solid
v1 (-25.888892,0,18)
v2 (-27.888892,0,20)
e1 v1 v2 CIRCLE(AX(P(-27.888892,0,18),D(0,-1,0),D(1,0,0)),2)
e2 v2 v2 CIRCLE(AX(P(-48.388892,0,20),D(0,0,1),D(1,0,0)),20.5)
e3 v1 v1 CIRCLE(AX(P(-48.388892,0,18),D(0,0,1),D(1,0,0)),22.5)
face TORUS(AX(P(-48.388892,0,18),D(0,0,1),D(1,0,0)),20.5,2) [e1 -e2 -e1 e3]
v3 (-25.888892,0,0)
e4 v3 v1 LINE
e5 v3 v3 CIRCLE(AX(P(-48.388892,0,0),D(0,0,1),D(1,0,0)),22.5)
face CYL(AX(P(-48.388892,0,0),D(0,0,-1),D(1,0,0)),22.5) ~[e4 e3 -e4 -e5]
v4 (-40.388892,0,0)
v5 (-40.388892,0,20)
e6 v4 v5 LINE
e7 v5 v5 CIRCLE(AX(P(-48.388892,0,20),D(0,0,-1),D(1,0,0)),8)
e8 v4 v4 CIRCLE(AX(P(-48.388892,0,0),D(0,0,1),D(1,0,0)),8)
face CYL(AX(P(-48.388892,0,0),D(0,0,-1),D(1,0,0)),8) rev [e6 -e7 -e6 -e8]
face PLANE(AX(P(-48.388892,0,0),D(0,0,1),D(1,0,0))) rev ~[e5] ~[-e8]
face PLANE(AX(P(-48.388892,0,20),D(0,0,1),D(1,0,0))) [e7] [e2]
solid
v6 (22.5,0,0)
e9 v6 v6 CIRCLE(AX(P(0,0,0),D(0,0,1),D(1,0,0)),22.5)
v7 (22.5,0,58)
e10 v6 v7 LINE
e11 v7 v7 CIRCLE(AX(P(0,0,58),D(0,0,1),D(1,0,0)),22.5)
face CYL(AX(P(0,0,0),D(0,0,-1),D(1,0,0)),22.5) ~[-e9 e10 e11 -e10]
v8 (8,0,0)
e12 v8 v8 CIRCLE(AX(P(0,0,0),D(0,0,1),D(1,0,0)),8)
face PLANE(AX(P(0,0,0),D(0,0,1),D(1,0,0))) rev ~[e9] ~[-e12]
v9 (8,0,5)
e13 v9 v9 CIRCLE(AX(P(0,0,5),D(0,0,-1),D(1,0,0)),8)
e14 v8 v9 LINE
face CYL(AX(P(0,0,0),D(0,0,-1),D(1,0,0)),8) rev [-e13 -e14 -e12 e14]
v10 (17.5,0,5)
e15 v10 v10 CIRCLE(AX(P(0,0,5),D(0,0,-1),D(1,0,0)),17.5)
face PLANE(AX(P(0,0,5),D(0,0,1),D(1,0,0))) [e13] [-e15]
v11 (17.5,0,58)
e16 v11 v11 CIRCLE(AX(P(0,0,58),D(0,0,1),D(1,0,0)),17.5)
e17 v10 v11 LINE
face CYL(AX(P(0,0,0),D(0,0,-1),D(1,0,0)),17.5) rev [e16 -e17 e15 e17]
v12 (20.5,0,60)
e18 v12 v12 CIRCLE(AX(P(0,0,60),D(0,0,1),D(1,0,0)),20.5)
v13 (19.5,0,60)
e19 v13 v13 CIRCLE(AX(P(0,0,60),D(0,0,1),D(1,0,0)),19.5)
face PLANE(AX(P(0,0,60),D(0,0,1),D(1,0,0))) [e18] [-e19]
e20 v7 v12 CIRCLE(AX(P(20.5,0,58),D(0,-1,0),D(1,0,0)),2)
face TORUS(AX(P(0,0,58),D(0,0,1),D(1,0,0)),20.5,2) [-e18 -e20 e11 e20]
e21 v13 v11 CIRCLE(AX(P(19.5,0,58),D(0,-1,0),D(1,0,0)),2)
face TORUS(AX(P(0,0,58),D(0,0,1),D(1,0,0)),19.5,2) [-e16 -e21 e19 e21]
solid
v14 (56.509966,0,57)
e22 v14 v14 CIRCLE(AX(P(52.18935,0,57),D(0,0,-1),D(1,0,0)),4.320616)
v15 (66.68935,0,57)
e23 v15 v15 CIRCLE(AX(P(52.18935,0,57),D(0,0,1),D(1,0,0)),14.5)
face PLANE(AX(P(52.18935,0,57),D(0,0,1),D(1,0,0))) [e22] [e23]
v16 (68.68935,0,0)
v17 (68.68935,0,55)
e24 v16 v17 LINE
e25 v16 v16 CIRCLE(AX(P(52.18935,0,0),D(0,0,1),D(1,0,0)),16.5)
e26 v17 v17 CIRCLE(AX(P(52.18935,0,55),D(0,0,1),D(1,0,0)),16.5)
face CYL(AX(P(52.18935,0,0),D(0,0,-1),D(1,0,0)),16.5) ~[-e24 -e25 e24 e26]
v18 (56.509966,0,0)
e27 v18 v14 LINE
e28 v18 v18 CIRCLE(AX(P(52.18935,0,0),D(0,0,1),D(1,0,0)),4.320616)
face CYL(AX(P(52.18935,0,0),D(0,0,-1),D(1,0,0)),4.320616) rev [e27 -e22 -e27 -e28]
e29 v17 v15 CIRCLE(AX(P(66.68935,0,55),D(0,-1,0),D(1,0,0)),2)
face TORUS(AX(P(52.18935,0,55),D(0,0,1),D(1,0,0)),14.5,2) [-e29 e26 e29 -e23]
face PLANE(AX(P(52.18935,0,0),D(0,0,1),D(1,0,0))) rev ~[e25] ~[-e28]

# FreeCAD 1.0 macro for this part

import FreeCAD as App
import Part
import Sketcher

V = App.Vector
Q = App.Units.Quantity


def edges_at(feature, points):
    """Names of the edges that pass closest to the given points."""
    edges = feature.Shape.Edges
    near = lambda p: min(range(len(edges)), key=lambda i: edges[i].distToShape(Part.Vertex(*p))[0])
    return sorted({f"Edge{near(p) + 1}" for p in points})


def faces_at(feature, points):
    """Names of the faces that lie closest to the given points."""
    faces = feature.Shape.Faces
    near = lambda p: min(range(len(faces)), key=lambda i: faces[i].distToShape(Part.Vertex(*p))[0])
    return sorted({f"Face{near(p) + 1}" for p in points})

doc = App.newDocument("Part")
body = doc.addObject("PartDesign::Body", "Body")

# Sketch on XY plane
sketch1 = doc.addObject("Sketcher::SketchObject", "Sketch")
body.addObject(sketch1)
sketch1.AttachmentSupport = (doc.XY_Plane, [""])
sketch1.MapMode = "FlatFace"
sketch1.addGeometry(Part.Circle(V(0, 0, 0), V(0, 0, 1), 22.5), False)
sketch1.addConstraint([
    Sketcher.Constraint("Coincident", 0, 3, -1, 1),
    Sketcher.Constraint("Diameter", 0, Q("45 mm")),
])
pad1 = doc.addObject("PartDesign::Pad", "Pad")
body.addObject(pad1)
pad1.Profile = sketch1
pad1.Length = 60
doc.recompute()

thickness = doc.addObject("PartDesign::Thickness", "Thickness")
body.addObject(thickness)
thickness.Base = (pad1, faces_at(pad1, [(0, 0, 60)]))
thickness.Value = 5
thickness.Reversed = True
thickness.Join = "Arc"
doc.recompute()

fillet = doc.addObject("PartDesign::Fillet", "Fillet")
body.addObject(fillet)
fillet.Base = (thickness, edges_at(thickness, [(-17.5, 0, 60), (-22.5, 0, 60)]))
fillet.Radius = 2
body2 = doc.addObject("PartDesign::Body", "Body001")

# Sketch on XY plane
sketch2 = doc.addObject("Sketcher::SketchObject", "Sketch001")
body2.addObject(sketch2)
sketch2.AttachmentSupport = (doc.getObject("XY_Plane001"), [""])
sketch2.MapMode = "FlatFace"
sketch2.addGeometry(Part.Circle(V(52.18935, 0, 0), V(0, 0, 1), 16.5), False)
sketch2.addConstraint([
    Sketcher.Constraint("PointOnObject", 0, 3, -1),
    Sketcher.Constraint("Diameter", 0, Q("33 mm")),
    Sketcher.Constraint("DistanceX", -1, 1, 0, 3, Q("52.18935 mm")),
])
pad2 = doc.addObject("PartDesign::Pad", "Pad001")
body2.addObject(pad2)
pad2.Profile = sketch2
pad2.Length = 57
doc.recompute()

fillet2 = doc.addObject("PartDesign::Fillet", "Fillet001")
body2.addObject(fillet2)
fillet2.Base = (pad2, edges_at(pad2, [(35.689, 0, 57)]))
fillet2.Radius = 2
body3 = doc.addObject("PartDesign::Body", "Body002")

# Sketch on XY plane
sketch3 = doc.addObject("Sketcher::SketchObject", "Sketch002")
body3.addObject(sketch3)
sketch3.AttachmentSupport = (doc.getObject("XY_Plane002"), [""])
sketch3.MapMode = "FlatFace"
sketch3.addGeometry(Part.Circle(V(-48.388892, 0, 0), V(0, 0, 1), 22.5), False)
sketch3.addConstraint([
    Sketcher.Constraint("PointOnObject", 0, 3, -1),
    Sketcher.Constraint("Diameter", 0, Q("45 mm")),
    Sketcher.Constraint("DistanceX", 0, 3, -1, 1, Q("48.388892 mm")),
])
pad3 = doc.addObject("PartDesign::Pad", "Pad002")
body3.addObject(pad3)
pad3.Profile = sketch3
pad3.Length = 20
doc.recompute()

fillet3 = doc.addObject("PartDesign::Fillet", "Fillet002")
body3.addObject(fillet3)
fillet3.Base = (pad3, edges_at(pad3, [(-70.889, 0, 20)]))
fillet3.Radius = 2
body4 = doc.addObject("PartDesign::Body", "Body003")
body4.AllowCompound = True

# Sketch on XY plane
sketch4 = doc.addObject("Sketcher::SketchObject", "Sketch003")
body4.addObject(sketch4)
sketch4.AttachmentSupport = (doc.getObject("XY_Plane003"), [""])
sketch4.MapMode = "FlatFace"
sketch4.addGeometry([
    Part.Circle(V(-48.388892, 0, 0), V(0, 0, 1), 8),
    Part.Circle(V(52.18935, 0, 0), V(0, 0, 1), 4.320616),
    Part.Circle(V(0, 0, 0), V(0, 0, 1), 8),
], False)
sketch4.addConstraint([
    Sketcher.Constraint("Coincident", 2, 3, -1, 1),
    Sketcher.Constraint("Equal", 0, 2),
    Sketcher.Constraint("PointOnObject", 0, 3, -1),
    Sketcher.Constraint("PointOnObject", 1, 3, -1),
    Sketcher.Constraint("Diameter", 0, Q("16 mm")),
    Sketcher.Constraint("Diameter", 1, Q("8.641232 mm")),
    Sketcher.Constraint("DistanceX", 0, 3, -1, 1, Q("48.388892 mm")),
    Sketcher.Constraint("DistanceX", -1, 1, 1, 3, Q("52.18935 mm")),
])
pad4 = doc.addObject("PartDesign::Pad", "Pad003")
body4.addObject(pad4)
pad4.Profile = sketch4
pad4.Length = 104.9
doc.recompute()

body5 = doc.addObject("PartDesign::Body", "Body004")
body5.BaseFeature = body4
boolean = doc.addObject("PartDesign::Boolean", "Boolean")
body.addObject(boolean)
boolean.Type = "Cut"
boolean.addObjects([body5])
doc.recompute()

body6 = doc.addObject("PartDesign::Body", "Body005")
body6.BaseFeature = body4
boolean2 = doc.addObject("PartDesign::Boolean", "Boolean001")
body2.addObject(boolean2)
boolean2.Type = "Cut"
boolean2.addObjects([body6])
doc.recompute()

boolean3 = doc.addObject("PartDesign::Boolean", "Boolean002")
body3.addObject(boolean3)
boolean3.Type = "Cut"
boolean3.addObjects([body4])

doc.recompute()
